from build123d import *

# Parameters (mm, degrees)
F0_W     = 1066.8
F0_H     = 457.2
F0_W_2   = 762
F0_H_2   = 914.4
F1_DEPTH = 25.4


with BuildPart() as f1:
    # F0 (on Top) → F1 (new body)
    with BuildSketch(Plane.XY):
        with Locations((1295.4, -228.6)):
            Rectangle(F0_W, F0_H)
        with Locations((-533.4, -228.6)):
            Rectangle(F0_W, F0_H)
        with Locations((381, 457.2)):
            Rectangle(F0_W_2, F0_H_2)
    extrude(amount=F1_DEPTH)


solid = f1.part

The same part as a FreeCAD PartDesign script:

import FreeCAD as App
import Part
import Sketcher
Q = App.Units.Quantity


def add_polygon(sketch, points):
    """Adds a closed chain of lines whose ends are joined by coincident constraints."""
    first, n = sketch.GeometryCount, len(points)
    for a, b in zip(points, points[1:] + points[:1]):
        sketch.addGeometry(Part.LineSegment(App.Vector(*a, 0), App.Vector(*b, 0)), False)
    for i in range(n):
        sketch.addConstraint(Sketcher.Constraint("Coincident", first + i, 2, first + (i + 1) % n, 1))

doc = App.newDocument("Part")
body = doc.addObject("PartDesign::Body", "Body")
body.AllowCompound = True

# Sketch on XY plane
sketch1 = body.newObject("Sketcher::SketchObject", "Sketch")
sketch1.AttachmentSupport = (doc.getObject("XY_Plane"), [""])
sketch1.MapMode = "FlatFace"
add_polygon(sketch1, [(762, 0), (762, -457), (1829, -457), (1829, 0)])  # lines 0-3
add_polygon(sketch1, [(-1067, 0), (-1067, -457), (0, -457), (0, 0)])  # lines 4-7
add_polygon(sketch1, [(0, 914), (0, 0), (762, 0), (762, 914)])  # lines 8-11
sketch1.addConstraint([
    Sketcher.Constraint("Vertical", 0),
    Sketcher.Constraint("Horizontal", 1),
    Sketcher.Constraint("Vertical", 2),
    Sketcher.Constraint("Horizontal", 3),
    Sketcher.Constraint("Vertical", 4),
    Sketcher.Constraint("Horizontal", 5),
    Sketcher.Constraint("Vertical", 6),
    Sketcher.Constraint("Horizontal", 7),
    Sketcher.Constraint("Vertical", 8),
    Sketcher.Constraint("Horizontal", 9),
    Sketcher.Constraint("Vertical", 10),
    Sketcher.Constraint("Horizontal", 11),
    Sketcher.Constraint("Coincident", 6, 2, -1, 1),
    Sketcher.Constraint("Coincident", 8, 2, -1, 1),
    Sketcher.Constraint("Coincident", 9, 2, 3, 2),
    Sketcher.Constraint("Horizontal", 1, 2, 4, 2),
    Sketcher.Constraint("Equal", 3, 5),
    Sketcher.Constraint("DistanceX", 1, 1, 1, 2, Q("42 in")),
    Sketcher.Constraint("DistanceX", 9, 1, 9, 2, Q("30 in")),
    Sketcher.Constraint("DistanceY", 0, 2, 0, 1, Q("18 in")),
    Sketcher.Constraint("DistanceY", 8, 2, 8, 1, Q("36 in")),
])
pad1 = body.newObject("PartDesign::Pad", "Pad")
pad1.Profile = sketch1
pad1.Length = Q("1 in")

doc.recompute()
